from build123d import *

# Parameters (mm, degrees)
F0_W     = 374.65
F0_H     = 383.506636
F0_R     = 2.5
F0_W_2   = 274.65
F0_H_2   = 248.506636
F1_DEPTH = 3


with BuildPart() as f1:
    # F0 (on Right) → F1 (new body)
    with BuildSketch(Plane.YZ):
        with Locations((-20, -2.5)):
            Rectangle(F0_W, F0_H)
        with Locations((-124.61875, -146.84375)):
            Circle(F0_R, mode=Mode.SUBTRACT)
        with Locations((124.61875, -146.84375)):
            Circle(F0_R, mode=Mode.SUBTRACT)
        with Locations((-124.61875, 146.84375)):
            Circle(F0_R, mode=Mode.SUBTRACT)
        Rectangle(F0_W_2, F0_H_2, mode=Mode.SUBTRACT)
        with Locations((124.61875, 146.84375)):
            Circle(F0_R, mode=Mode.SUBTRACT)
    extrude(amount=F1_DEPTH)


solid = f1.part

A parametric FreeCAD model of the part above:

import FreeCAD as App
import Part
import Sketcher

doc = App.newDocument("Part")
body = doc.addObject("PartDesign::Body", "Body")

sketch1 = doc.addObject("Sketcher::SketchObject", "Sketch")
body.addObject(sketch1)
sketch1.AttachmentSupport = (doc.YZ_Plane, [""])
sketch1.MapMode = "FlatFace"
sketch1.addGeometry([
    Part.LineSegment(App.Vector(-207.325, 189.253318, 0), App.Vector(-207.325, -194.253318, 0)),
    Part.LineSegment(App.Vector(-207.325, -194.253318, 0), App.Vector(167.325, -194.253318, 0)),
    Part.LineSegment(App.Vector(167.325, -194.253318, 0), App.Vector(167.325, 189.253318, 0)),
    Part.LineSegment(App.Vector(167.325, 189.253318, 0), App.Vector(-207.325, 189.253318, 0)),
    Part.Circle(App.Vector(-124.61875, -146.84375, 0), App.Vector(0, 0, 1), 2.5),
    Part.Circle(App.Vector(124.61875, -146.84375, 0), App.Vector(0, 0, 1), 2.5),
    Part.Circle(App.Vector(-124.61875, 146.84375, 0), App.Vector(0, 0, 1), 2.5),
    Part.LineSegment(App.Vector(137.325, -124.253318, 0), App.Vector(-137.325, -124.253318, 0)),
    Part.LineSegment(App.Vector(-137.325, -124.253318, 0), App.Vector(-137.325, 124.253318, 0)),
    Part.LineSegment(App.Vector(-137.325, 124.253318, 0), App.Vector(137.325, 124.253318, 0)),
    Part.LineSegment(App.Vector(137.325, 124.253318, 0), App.Vector(137.325, -124.253318, 0)),
    Part.Circle(App.Vector(124.61875, 146.84375, 0), App.Vector(0, 0, 1), 2.5),
], False)
sketch1.addConstraint([
    Sketcher.Constraint("Coincident", 0, 2, 1, 1),
    Sketcher.Constraint("Coincident", 1, 2, 2, 1),
    Sketcher.Constraint("Coincident", 2, 2, 3, 1),
    Sketcher.Constraint("Coincident", 3, 2, 0, 1),
    Sketcher.Constraint("Coincident", 7, 2, 8, 1),
    Sketcher.Constraint("Coincident", 8, 2, 9, 1),
    Sketcher.Constraint("Coincident", 9, 2, 10, 1),
    Sketcher.Constraint("Coincident", 10, 2, 7, 1),
    Sketcher.Constraint("Vertical", 0),
    Sketcher.Constraint("Horizontal", 1),
    Sketcher.Constraint("Vertical", 2),
    Sketcher.Constraint("Horizontal", 3),
    Sketcher.Constraint("Horizontal", 7),
    Sketcher.Constraint("Vertical", 8),
    Sketcher.Constraint("Horizontal", 9),
    Sketcher.Constraint("Vertical", 10),
    Sketcher.Constraint("Equal", 4, 5),
    Sketcher.Constraint("Equal", 5, 6),
    Sketcher.Constraint("Equal", 6, 11),
    Sketcher.Constraint("Symmetric", 5, 3, 6, 3, -1, 1),
    Sketcher.Constraint("Symmetric", 4, 3, 11, 3, -1, 1),
    Sketcher.Constraint("Symmetric", 7, 2, 9, 2, -1, 1),
    Sketcher.Constraint("Symmetric", 4, 3, 5, 3, -2),
    Sketcher.Constraint("Diameter", 4, 5.0),
    Sketcher.Constraint("DistanceX", 0, 2, 7, 2, 70.0),
    Sketcher.Constraint("DistanceY", 0, 2, 7, 2, 70.0),
    Sketcher.Constraint("DistanceY", 8, 2, 3, 2, 65.0),
    Sketcher.Constraint("DistanceX", 9, 2, 2, 2, 30.0),
    Sketcher.Constraint("DistanceX", 1, 1, 1, 2, 374.65),
    Sketcher.Constraint("DistanceX", 4, 3, 5, 3, 249.2375),
    Sketcher.Constraint("DistanceY", 4, 3, 6, 3, 293.6875),
    Sketcher.Constraint("DistanceY", 0, 2, 0, 1, 383.506636),
])
pad1 = doc.addObject("PartDesign::Pad", "Pad")
body.addObject(pad1)
pad1.Profile = sketch1
pad1.Length = 3

doc.recompute()
